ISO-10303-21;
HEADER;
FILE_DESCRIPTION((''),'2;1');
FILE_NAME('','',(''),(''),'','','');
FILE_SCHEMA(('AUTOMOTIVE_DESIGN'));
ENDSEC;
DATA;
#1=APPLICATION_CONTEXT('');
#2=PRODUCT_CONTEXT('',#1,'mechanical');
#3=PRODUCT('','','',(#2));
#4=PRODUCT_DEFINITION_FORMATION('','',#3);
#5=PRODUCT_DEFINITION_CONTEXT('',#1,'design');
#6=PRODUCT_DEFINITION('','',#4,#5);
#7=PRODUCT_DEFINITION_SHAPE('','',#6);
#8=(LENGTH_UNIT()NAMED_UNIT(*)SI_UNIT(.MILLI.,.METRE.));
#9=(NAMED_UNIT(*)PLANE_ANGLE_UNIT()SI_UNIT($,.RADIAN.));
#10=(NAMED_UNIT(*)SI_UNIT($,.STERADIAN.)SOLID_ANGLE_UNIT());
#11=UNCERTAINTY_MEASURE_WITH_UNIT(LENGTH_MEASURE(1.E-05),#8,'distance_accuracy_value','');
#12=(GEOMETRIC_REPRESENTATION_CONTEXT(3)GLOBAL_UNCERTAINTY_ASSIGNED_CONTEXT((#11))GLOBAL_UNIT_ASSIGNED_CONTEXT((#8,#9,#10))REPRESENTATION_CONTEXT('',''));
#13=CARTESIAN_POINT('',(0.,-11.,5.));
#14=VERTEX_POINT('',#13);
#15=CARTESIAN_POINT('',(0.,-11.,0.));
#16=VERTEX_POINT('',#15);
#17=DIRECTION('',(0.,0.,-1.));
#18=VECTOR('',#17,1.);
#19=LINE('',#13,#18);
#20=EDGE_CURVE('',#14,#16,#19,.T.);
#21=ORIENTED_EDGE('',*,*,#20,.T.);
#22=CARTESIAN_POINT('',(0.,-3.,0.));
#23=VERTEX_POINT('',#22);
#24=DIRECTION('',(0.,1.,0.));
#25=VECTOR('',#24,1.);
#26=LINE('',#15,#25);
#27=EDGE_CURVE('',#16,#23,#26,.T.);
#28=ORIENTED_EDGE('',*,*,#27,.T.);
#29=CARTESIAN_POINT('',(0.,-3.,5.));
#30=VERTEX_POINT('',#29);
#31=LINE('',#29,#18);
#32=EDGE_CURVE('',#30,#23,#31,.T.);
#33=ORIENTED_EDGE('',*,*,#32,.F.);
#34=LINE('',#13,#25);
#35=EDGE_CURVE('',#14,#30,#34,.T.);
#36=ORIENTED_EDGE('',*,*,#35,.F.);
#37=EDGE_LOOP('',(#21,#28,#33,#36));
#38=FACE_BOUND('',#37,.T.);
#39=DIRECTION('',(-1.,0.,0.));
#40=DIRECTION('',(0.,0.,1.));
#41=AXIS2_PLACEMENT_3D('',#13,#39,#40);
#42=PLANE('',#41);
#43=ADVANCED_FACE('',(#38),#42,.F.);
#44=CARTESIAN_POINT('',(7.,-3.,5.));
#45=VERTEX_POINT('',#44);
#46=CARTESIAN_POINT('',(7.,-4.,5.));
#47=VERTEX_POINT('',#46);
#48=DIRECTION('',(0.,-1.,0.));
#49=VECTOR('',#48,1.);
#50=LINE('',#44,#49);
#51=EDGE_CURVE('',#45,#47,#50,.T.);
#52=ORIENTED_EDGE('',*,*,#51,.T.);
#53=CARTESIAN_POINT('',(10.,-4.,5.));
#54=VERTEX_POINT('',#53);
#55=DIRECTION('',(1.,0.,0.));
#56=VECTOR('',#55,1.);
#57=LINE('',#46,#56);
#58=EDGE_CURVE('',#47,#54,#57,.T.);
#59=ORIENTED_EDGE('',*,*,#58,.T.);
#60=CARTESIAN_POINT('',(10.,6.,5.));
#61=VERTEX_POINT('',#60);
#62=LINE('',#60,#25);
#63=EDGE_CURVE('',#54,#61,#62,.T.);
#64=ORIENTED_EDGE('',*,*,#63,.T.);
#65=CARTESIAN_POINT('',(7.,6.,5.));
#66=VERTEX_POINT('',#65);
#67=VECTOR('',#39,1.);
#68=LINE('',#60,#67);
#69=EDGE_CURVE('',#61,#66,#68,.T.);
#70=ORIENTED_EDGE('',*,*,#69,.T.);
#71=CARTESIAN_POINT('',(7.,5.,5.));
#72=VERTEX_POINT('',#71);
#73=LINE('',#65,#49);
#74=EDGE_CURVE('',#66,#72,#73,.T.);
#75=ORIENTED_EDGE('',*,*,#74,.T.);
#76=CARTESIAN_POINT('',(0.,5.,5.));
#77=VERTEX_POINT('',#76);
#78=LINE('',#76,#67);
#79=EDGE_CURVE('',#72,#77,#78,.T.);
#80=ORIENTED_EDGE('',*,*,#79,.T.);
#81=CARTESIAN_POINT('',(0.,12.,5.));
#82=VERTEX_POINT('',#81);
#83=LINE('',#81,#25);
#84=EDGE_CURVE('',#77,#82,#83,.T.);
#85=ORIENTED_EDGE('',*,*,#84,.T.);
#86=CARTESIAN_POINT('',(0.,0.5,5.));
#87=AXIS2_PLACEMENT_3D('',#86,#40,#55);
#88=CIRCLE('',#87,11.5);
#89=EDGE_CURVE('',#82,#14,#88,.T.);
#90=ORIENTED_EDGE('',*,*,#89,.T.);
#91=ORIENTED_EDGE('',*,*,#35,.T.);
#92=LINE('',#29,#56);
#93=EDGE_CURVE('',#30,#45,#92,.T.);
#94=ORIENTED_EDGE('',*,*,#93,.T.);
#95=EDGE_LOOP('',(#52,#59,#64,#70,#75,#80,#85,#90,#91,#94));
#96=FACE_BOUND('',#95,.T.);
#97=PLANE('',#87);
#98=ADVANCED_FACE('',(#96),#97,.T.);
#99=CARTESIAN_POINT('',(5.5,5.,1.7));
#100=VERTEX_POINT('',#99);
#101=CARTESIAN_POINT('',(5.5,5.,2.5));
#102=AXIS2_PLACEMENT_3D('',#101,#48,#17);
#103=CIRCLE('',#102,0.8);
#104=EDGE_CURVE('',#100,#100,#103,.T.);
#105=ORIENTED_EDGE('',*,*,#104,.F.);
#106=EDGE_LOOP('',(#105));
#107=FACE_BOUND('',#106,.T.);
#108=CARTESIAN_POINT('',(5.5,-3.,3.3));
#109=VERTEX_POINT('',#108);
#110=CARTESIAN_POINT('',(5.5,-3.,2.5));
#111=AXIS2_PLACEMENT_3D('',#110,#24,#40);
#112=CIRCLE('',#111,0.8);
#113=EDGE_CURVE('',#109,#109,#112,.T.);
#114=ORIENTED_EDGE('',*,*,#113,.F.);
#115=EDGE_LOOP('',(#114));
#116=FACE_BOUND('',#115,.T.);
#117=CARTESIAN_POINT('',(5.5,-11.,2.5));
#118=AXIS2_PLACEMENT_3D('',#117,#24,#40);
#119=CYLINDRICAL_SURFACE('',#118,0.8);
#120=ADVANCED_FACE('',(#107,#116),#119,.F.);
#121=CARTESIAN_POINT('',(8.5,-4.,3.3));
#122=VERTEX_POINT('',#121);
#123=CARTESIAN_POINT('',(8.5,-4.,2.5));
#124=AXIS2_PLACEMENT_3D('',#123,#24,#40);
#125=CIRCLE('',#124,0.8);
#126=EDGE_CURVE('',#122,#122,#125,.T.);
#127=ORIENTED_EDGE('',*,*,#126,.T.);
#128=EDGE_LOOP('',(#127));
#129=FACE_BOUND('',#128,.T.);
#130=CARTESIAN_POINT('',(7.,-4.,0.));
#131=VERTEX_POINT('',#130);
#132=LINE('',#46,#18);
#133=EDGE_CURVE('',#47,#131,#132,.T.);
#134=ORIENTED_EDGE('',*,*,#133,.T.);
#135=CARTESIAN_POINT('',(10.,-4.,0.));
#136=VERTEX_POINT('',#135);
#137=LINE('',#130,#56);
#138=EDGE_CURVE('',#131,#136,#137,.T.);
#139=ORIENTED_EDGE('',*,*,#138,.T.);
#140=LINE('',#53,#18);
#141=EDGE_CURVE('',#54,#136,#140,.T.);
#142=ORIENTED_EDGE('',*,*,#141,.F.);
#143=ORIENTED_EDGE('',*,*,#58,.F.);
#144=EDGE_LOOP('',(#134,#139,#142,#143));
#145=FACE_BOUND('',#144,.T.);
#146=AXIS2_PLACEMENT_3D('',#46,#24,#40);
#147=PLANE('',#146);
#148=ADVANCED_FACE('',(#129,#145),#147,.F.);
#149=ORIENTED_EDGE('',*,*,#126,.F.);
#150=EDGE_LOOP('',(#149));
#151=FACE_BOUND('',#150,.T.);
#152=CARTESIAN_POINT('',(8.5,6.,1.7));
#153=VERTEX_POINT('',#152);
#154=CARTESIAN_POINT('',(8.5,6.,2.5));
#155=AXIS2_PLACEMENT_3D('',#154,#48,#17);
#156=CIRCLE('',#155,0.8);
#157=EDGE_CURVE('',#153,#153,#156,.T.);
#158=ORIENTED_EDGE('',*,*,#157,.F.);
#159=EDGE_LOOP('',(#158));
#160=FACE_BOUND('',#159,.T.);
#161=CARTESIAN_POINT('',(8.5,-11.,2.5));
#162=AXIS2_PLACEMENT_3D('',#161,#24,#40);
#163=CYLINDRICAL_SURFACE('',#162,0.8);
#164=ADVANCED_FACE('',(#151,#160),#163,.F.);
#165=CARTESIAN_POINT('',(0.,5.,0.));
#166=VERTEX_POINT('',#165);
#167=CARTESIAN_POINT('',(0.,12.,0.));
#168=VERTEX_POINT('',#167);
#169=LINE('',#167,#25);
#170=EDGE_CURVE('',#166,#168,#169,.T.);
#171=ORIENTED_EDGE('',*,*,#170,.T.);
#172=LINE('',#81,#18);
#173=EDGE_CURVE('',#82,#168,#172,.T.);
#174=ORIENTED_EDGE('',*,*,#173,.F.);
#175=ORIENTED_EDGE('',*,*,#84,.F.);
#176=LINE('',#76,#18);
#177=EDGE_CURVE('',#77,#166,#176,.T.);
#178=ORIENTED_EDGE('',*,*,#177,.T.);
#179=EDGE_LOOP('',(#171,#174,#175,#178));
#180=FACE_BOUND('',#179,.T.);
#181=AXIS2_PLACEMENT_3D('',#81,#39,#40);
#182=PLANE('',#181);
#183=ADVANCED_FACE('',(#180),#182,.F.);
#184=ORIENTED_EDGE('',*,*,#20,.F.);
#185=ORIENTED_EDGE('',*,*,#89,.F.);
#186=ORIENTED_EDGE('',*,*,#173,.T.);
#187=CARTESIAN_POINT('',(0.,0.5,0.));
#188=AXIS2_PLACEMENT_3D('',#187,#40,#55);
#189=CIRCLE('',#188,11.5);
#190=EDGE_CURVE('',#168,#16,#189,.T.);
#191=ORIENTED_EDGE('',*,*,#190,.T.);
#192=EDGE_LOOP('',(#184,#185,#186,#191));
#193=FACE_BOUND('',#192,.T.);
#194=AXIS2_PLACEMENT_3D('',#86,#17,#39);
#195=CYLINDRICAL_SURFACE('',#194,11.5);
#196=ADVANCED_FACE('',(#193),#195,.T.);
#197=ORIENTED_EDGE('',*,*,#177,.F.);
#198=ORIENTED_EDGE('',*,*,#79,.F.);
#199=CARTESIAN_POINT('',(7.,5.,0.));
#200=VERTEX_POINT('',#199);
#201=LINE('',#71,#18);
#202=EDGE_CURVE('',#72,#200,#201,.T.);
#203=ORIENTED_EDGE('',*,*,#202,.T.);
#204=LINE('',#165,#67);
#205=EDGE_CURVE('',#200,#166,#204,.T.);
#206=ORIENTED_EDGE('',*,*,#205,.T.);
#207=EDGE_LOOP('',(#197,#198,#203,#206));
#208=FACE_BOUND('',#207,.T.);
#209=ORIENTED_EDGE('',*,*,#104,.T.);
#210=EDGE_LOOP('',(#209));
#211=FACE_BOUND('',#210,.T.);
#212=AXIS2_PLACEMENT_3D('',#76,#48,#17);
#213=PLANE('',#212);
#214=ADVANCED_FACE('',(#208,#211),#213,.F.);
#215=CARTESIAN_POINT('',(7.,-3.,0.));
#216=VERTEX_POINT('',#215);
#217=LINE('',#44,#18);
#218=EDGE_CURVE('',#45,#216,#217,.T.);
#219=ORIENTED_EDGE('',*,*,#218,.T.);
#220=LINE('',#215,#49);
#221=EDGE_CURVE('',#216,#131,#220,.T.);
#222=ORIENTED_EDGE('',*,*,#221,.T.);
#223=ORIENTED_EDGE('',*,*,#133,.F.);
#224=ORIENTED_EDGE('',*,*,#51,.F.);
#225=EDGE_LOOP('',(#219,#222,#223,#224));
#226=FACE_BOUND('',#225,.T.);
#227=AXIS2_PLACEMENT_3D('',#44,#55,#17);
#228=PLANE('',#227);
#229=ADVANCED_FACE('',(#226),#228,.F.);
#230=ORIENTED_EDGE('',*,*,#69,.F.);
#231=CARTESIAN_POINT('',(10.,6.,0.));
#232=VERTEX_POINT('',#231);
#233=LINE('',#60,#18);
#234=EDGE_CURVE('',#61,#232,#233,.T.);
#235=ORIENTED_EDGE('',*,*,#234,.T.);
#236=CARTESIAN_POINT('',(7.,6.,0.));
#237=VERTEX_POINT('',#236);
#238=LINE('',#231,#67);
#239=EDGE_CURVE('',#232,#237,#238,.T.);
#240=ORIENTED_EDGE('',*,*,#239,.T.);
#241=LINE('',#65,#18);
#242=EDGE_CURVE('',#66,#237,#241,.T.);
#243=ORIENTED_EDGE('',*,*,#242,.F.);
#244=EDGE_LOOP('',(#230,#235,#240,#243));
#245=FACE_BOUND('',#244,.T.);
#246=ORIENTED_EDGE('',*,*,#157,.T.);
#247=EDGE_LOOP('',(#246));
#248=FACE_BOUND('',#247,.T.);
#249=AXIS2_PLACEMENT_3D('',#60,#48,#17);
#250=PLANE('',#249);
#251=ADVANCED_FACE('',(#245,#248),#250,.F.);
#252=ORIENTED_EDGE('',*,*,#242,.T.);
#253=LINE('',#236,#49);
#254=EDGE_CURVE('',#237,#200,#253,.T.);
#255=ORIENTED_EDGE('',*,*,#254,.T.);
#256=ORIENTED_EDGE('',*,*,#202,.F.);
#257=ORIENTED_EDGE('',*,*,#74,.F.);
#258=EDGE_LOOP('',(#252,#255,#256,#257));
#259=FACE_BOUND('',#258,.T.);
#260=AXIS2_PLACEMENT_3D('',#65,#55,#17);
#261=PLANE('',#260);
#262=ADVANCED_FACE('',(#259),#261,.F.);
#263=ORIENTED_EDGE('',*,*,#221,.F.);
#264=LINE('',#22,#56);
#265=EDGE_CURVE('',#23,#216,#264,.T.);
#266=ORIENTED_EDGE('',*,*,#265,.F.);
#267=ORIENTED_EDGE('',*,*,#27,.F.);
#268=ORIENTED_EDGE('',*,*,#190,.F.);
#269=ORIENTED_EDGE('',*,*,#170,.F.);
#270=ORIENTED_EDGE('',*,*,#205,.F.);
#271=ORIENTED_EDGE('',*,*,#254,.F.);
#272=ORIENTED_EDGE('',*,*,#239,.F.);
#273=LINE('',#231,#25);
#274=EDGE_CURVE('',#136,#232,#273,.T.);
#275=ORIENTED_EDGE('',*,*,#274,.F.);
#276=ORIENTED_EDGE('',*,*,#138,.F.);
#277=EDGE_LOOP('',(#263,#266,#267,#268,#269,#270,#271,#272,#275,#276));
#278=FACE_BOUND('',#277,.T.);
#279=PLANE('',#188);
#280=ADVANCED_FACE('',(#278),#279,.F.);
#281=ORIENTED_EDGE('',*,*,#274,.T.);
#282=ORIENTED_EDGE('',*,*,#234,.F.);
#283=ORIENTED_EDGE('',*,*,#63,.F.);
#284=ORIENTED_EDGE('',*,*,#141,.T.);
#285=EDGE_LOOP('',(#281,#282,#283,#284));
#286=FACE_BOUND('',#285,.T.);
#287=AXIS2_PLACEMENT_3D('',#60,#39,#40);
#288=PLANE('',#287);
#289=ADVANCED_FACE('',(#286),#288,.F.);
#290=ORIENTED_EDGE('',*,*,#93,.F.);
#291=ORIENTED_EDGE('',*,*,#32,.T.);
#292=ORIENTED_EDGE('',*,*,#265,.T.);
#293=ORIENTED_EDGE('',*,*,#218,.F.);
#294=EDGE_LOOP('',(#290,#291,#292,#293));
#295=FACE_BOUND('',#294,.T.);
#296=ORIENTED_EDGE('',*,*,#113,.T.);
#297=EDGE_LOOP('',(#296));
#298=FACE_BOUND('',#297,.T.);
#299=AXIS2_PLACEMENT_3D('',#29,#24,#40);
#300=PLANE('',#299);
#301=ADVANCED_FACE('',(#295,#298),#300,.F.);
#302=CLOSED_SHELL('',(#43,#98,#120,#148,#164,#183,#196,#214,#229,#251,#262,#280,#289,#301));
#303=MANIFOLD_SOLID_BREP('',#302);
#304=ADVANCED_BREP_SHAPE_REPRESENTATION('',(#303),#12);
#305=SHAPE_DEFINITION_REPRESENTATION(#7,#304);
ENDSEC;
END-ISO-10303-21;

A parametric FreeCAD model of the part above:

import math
import FreeCAD as App
import Part
import Sketcher

V = App.Vector

doc = App.newDocument("Part")
body = doc.addObject("PartDesign::Body", "Body")

# Sketch on XY plane
sketch1 = body.newObject("Sketcher::SketchObject", "Sketch")
sketch1.AttachmentSupport = (doc.getObject("XY_Plane"), [""])
sketch1.MapMode = "FlatFace"
sketch1.addGeometry([
    Part.LineSegment(V(0, -11, 0), V(0, -3, 0)),  # 0
    Part.LineSegment(V(0, -3, 0), V(7, -3, 0)),  # 1
    Part.LineSegment(V(7, -3, 0), V(7, -4, 0)),  # 2
    Part.LineSegment(V(7, -4, 0), V(10, -4, 0)),  # 3
    Part.LineSegment(V(10, -4, 0), V(10, 6, 0)),  # 4
    Part.LineSegment(V(10, 6, 0), V(7, 6, 0)),  # 5
    Part.LineSegment(V(7, 6, 0), V(7, 5, 0)),  # 6
    Part.LineSegment(V(7, 5, 0), V(0, 5, 0)),  # 7
    Part.LineSegment(V(0, 5, 0), V(0, 12, 0)),  # 8
    Part.ArcOfCircle(Part.Circle(V(0, 0.5, 0), V(0, 0, 1), 11.5), math.radians(90), math.radians(270)),  # 9
], False)
sketch1.addConstraint([
    Sketcher.Constraint("Coincident", 0, 2, 1, 1),
    Sketcher.Constraint("Coincident", 1, 2, 2, 1),
    Sketcher.Constraint("Coincident", 2, 2, 3, 1),
    Sketcher.Constraint("Coincident", 3, 2, 4, 1),
    Sketcher.Constraint("Coincident", 4, 2, 5, 1),
    Sketcher.Constraint("Coincident", 5, 2, 6, 1),
    Sketcher.Constraint("Coincident", 6, 2, 7, 1),
    Sketcher.Constraint("Coincident", 7, 2, 8, 1),
    Sketcher.Constraint("Coincident", 8, 2, 9, 1),
    Sketcher.Constraint("Coincident", 9, 2, 0, 1),
    Sketcher.Constraint("Vertical", 0),
    Sketcher.Constraint("Horizontal", 1),
    Sketcher.Constraint("Vertical", 2),
    Sketcher.Constraint("Horizontal", 3),
    Sketcher.Constraint("Vertical", 4),
    Sketcher.Constraint("Horizontal", 5),
    Sketcher.Constraint("Vertical", 6),
    Sketcher.Constraint("Horizontal", 7),
    Sketcher.Constraint("Vertical", 8),
    Sketcher.Constraint("PointOnObject", 9, 3, -2),
    Sketcher.Constraint("PointOnObject", 0, 2, -2),
    Sketcher.Constraint("PointOnObject", 7, 2, -2),
    Sketcher.Constraint("Vertical", 2, 2, 5, 2),
    Sketcher.Constraint("Equal", 2, 6),
    Sketcher.Constraint("Equal", 7, 8),
    Sketcher.Constraint("Radius", 9, 11.5),
    Sketcher.Constraint("DistanceX", 1, 1, 1, 2, 7.0),
    Sketcher.Constraint("DistanceX", 3, 1, 3, 2, 3.0),
    Sketcher.Constraint("DistanceY", 0, 1, 0, 2, 8.0),
    Sketcher.Constraint("DistanceY", 2, 2, 2, 1, 1.0),
    Sketcher.Constraint("DistanceY", 0, 2, -1, 1, 3.0),
])
pad1 = body.newObject("PartDesign::Pad", "Pad")
pad1.Profile = sketch1
pad1.Length = 5

# Sketch on XZ plane
sketch2 = body.newObject("Sketcher::SketchObject", "Sketch001")
sketch2.AttachmentSupport = (doc.getObject("XZ_Plane"), [""])
sketch2.MapMode = "FlatFace"
sketch2.AttachmentOffset = App.Placement(V(0, 0, -11), App.Rotation())
sketch2.addGeometry([
    Part.Circle(V(8.5, 2.5, 0), V(0, 0, 1), 0.8),
    Part.Circle(V(5.5, 2.5, 0), V(0, 0, 1), 0.8),
], False)
sketch2.addConstraint([
    Sketcher.Constraint("Equal", 0, 1),
    Sketcher.Constraint("Horizontal", 0, 3, 1, 3),
    Sketcher.Constraint("Diameter", 0, 1.6),
    Sketcher.Constraint("DistanceX", 1, 3, 0, 3, 3.0),
    Sketcher.Constraint("DistanceX", -1, 1, 0, 3, 8.5),
    Sketcher.Constraint("DistanceY", -1, 1, 0, 3, 2.5),
])
pocket1 = body.newObject("PartDesign::Pocket", "Pocket")
pocket1.Profile = sketch2
pocket1.Type = "ThroughAll"
pocket1.Reversed = True

doc.recompute()
